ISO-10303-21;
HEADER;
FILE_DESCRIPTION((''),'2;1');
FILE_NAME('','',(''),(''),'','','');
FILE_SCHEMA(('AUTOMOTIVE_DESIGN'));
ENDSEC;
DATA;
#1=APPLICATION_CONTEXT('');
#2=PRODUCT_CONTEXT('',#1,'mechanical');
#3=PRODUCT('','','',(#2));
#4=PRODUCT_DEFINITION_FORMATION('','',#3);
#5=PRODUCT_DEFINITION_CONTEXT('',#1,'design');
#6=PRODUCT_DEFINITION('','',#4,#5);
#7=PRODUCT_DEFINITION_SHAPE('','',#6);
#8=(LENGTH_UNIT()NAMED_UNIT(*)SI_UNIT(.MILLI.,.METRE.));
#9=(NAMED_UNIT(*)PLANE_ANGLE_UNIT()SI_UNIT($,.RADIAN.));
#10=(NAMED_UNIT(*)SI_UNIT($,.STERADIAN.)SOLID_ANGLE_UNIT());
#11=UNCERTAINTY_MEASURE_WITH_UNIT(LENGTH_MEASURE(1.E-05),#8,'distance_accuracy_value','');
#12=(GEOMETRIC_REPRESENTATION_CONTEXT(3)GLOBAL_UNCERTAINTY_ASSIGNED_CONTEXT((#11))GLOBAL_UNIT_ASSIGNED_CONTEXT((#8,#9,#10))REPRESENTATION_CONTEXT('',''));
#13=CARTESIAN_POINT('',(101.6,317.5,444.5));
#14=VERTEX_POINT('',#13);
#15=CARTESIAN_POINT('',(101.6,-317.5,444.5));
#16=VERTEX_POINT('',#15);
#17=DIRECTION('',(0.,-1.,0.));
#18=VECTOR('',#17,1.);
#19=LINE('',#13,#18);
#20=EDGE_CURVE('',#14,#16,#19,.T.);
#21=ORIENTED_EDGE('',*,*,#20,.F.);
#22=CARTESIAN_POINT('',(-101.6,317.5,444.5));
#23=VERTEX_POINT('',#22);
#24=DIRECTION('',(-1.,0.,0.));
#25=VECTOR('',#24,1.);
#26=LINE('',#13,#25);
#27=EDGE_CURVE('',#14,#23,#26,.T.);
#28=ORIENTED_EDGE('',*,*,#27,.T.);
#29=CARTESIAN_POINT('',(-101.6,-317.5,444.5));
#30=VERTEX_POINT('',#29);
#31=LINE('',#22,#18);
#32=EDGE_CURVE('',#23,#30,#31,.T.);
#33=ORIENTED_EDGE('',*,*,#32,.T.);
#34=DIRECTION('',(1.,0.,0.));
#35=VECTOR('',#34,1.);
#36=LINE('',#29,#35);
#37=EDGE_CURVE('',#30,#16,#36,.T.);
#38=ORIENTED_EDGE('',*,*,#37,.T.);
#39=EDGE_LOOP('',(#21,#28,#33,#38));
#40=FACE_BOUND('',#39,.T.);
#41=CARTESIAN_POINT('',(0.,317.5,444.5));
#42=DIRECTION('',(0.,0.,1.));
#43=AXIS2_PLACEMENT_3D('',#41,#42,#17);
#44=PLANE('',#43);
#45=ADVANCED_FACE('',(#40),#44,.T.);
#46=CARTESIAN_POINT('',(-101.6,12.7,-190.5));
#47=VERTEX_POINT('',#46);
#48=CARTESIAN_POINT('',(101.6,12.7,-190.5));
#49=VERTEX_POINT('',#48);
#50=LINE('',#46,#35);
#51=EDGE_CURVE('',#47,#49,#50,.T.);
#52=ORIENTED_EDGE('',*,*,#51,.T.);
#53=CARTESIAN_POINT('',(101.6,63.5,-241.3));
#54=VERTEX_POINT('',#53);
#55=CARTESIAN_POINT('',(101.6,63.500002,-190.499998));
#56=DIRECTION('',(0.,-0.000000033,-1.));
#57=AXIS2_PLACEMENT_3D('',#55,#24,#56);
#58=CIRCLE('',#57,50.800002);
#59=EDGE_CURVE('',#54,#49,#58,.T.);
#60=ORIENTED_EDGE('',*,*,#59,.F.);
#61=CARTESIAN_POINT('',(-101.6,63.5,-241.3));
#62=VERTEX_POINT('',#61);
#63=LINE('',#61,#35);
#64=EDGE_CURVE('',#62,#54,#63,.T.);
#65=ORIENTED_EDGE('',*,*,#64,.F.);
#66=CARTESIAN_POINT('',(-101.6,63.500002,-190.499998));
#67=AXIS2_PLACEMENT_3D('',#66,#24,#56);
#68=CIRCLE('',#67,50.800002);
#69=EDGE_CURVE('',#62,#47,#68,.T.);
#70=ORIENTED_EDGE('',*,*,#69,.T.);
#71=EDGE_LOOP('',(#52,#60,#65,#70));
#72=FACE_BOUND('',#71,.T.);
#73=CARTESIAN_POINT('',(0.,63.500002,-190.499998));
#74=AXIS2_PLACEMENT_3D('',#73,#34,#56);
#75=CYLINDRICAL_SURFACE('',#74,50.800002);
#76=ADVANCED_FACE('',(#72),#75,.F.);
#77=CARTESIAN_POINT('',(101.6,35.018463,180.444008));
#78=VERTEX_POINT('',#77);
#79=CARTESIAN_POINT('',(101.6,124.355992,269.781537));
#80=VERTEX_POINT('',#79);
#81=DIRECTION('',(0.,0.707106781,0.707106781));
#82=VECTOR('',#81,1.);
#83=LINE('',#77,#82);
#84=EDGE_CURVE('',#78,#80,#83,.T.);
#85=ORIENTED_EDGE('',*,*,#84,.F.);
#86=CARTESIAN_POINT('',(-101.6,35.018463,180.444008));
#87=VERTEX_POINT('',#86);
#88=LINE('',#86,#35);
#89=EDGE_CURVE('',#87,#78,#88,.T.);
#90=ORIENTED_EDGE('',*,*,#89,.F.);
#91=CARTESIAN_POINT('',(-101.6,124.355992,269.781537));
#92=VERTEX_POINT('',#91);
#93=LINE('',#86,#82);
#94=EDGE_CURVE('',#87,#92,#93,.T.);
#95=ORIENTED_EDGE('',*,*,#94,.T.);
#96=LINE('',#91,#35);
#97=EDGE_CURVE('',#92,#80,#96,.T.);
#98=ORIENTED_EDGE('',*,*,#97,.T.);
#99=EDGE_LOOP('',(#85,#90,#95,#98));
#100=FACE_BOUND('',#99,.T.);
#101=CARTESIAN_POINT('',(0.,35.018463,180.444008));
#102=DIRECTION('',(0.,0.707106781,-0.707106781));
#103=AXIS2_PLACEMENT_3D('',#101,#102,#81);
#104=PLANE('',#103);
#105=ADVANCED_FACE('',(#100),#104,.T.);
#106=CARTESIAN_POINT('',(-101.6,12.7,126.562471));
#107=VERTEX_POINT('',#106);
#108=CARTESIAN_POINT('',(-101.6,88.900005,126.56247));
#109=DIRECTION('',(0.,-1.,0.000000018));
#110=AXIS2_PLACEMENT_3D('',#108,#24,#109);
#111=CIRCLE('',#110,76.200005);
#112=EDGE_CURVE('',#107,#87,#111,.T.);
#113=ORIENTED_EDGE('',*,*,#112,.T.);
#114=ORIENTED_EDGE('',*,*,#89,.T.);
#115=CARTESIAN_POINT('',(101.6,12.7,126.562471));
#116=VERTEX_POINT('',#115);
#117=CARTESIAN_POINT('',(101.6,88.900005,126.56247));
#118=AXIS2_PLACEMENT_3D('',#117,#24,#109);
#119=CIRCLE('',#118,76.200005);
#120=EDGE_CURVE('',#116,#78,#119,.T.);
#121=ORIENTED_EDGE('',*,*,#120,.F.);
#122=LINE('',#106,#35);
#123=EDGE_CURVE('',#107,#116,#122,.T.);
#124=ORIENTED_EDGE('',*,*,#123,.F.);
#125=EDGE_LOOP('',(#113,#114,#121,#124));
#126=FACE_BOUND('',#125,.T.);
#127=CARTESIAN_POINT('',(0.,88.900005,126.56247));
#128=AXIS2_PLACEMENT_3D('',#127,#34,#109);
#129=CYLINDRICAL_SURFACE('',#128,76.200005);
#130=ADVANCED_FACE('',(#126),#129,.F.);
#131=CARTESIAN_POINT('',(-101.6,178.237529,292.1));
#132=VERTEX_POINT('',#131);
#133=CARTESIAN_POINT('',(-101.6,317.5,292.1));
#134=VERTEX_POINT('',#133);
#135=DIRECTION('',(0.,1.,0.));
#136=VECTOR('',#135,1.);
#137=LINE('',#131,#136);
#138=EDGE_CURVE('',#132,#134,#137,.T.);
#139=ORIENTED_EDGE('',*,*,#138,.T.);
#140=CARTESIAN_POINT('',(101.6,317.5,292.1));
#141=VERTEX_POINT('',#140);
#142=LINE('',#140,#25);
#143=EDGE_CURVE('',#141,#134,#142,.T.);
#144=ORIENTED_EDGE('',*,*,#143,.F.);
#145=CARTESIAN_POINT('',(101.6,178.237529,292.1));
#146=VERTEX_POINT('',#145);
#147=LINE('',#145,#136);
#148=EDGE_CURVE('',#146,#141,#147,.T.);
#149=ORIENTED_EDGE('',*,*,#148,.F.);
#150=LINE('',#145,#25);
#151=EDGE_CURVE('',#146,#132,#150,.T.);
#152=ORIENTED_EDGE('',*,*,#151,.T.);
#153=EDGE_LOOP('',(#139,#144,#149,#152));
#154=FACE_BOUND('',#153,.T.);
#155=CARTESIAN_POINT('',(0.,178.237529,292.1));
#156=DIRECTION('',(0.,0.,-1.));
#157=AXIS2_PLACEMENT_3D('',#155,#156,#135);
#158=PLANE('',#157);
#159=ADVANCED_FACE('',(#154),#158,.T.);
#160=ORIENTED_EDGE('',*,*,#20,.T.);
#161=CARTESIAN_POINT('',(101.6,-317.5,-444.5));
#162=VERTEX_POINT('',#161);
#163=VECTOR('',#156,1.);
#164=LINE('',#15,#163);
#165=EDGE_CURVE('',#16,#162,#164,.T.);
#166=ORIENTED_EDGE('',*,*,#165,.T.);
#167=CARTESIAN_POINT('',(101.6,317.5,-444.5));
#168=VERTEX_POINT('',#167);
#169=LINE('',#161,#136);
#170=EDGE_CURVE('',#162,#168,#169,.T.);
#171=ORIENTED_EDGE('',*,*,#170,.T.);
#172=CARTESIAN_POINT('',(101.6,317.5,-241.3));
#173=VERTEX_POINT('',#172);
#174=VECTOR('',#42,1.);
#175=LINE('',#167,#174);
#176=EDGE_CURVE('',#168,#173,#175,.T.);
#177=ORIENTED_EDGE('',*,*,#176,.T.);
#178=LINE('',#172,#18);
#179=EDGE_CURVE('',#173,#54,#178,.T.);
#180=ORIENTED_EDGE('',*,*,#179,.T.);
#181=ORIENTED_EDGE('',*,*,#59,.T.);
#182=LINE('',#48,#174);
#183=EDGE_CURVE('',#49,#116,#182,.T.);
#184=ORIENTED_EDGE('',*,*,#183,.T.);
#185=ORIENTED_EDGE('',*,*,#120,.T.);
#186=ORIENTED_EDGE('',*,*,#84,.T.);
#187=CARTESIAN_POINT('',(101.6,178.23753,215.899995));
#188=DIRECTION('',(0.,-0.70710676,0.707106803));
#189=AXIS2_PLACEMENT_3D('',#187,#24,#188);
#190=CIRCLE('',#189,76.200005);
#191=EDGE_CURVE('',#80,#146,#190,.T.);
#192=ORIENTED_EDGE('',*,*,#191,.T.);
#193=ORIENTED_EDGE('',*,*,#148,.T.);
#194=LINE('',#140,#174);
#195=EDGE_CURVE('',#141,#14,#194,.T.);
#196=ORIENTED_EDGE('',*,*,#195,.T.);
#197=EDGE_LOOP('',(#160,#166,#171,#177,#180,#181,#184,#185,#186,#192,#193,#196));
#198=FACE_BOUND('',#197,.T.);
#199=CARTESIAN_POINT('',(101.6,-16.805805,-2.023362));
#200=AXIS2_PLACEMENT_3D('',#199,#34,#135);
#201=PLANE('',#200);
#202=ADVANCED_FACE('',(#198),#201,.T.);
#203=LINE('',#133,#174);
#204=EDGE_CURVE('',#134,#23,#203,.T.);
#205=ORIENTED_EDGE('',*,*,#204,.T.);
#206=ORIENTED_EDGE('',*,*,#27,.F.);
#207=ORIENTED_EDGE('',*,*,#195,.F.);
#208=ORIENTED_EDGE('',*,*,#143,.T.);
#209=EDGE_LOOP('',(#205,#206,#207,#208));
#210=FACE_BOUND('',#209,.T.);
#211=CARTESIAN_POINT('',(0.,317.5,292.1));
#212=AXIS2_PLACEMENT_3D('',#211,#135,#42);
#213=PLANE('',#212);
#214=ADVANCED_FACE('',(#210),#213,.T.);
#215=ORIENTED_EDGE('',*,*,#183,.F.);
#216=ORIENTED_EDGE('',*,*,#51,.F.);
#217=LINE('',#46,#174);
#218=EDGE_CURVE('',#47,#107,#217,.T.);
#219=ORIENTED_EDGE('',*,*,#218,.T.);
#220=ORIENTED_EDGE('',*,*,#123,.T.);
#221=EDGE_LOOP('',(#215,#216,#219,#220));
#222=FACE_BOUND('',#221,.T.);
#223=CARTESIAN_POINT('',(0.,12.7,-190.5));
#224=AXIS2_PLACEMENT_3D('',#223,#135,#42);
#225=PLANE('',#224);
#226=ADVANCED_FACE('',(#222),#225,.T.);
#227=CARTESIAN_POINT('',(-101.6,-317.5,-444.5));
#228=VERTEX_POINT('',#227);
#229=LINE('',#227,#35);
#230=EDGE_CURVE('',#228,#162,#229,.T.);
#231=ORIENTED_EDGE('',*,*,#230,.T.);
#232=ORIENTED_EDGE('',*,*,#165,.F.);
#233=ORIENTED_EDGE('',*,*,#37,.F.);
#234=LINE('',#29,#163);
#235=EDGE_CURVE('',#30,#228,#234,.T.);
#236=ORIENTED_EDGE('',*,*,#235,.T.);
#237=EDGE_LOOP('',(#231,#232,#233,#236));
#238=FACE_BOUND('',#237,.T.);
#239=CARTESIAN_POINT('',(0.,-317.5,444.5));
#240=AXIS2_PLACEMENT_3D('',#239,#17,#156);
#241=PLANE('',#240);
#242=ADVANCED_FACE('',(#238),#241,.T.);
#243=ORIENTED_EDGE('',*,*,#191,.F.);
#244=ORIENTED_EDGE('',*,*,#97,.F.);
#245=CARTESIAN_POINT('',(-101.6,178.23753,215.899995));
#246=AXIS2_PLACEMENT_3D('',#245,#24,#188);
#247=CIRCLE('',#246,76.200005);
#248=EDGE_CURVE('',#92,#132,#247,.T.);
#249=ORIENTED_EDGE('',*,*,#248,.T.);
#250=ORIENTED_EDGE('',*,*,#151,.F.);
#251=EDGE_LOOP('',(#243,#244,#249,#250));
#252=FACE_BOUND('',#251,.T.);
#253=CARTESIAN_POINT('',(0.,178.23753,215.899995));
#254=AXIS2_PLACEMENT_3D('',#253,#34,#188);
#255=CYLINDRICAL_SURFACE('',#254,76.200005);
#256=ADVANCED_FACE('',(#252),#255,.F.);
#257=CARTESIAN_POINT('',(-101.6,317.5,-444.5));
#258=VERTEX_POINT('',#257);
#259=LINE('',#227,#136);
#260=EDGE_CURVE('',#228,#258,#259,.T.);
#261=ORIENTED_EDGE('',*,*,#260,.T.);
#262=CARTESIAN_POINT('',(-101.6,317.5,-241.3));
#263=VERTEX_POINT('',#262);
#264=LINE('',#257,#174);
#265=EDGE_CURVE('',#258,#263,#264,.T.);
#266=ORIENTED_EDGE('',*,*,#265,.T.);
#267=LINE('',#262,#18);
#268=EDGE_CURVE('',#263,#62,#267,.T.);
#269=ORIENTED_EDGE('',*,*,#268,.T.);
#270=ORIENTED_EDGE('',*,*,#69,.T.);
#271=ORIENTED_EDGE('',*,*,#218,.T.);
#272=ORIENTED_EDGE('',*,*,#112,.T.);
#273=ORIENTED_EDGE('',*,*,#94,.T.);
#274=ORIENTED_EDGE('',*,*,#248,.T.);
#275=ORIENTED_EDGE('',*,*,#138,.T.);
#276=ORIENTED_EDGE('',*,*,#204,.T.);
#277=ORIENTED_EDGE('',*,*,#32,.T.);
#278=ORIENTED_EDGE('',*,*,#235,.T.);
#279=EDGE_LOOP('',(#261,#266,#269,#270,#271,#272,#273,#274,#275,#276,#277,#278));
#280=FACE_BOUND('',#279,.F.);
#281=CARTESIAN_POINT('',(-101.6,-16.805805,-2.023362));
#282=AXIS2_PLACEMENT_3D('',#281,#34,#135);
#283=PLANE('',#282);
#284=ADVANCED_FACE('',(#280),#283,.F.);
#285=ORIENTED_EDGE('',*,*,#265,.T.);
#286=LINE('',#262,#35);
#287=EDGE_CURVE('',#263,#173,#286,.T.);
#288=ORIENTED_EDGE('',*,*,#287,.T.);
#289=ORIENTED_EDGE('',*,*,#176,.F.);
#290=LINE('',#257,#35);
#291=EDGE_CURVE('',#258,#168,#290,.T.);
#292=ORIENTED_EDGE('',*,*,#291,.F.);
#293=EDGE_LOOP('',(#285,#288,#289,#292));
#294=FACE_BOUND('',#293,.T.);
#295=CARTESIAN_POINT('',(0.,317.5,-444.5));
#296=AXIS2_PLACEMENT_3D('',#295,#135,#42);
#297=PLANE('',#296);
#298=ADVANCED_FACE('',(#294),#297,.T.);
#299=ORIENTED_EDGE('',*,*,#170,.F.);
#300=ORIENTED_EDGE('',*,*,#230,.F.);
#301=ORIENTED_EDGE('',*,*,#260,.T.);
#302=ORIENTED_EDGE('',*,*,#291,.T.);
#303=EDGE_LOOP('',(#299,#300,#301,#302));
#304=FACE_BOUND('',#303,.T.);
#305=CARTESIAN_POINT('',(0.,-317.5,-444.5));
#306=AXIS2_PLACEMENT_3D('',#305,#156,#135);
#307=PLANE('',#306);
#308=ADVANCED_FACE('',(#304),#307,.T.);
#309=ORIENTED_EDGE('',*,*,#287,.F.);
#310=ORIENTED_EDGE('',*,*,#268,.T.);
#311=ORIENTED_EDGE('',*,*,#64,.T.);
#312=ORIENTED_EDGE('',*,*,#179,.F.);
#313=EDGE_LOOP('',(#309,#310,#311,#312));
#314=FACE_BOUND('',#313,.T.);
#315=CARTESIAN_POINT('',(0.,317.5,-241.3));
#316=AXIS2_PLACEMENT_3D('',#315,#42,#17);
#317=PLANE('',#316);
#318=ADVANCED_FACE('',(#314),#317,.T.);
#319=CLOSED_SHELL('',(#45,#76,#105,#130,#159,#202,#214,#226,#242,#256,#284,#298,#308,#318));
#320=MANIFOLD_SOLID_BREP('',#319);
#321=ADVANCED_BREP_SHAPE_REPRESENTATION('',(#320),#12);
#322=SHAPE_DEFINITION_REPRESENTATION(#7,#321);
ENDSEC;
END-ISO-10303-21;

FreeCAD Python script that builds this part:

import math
import FreeCAD as App
import Part
import Sketcher
from FreeCAD import Vector
Q = App.Units.Quantity

doc = App.newDocument("Part")
body = doc.addObject("PartDesign::Body", "Body")

sketch1 = body.newObject("Sketcher::SketchObject", "Sketch")
sketch1.AttachmentSupport = (doc.getObject("YZ_Plane"), [""])
sketch1.MapMode = "FlatFace"
sketch1.addGeometry(Part.LineSegment(Vector(318, 444, 0), Vector(-318, 444, 0)), False)
sketch1.addGeometry(Part.LineSegment(Vector(-318, 444, 0), Vector(-318, -444, 0)), False)
sketch1.addGeometry(Part.LineSegment(Vector(-318, -444, 0), Vector(318, -444, 0)), False)
sketch1.addGeometry(Part.LineSegment(Vector(318, -444, 0), Vector(318, -241, 0)), False)
sketch1.addGeometry(Part.LineSegment(Vector(318, -241, 0), Vector(64, -241, 0)), False)
sketch1.addGeometry(Part.ArcOfCircle(Part.Circle(Vector(64, -190, 0), Vector(0, 0, 1), 51), math.radians(-180), math.radians(-90)), False)
sketch1.addGeometry(Part.LineSegment(Vector(13, -190, 0), Vector(13, 127, 0)), False)
sketch1.addGeometry(Part.ArcOfCircle(Part.Circle(Vector(89, 127, 0), Vector(0, 0, 1), 76), math.radians(135), math.radians(180)), False)
sketch1.addGeometry(Part.LineSegment(Vector(35, 180, 0), Vector(124, 270, 0)), False)
sketch1.addGeometry(Part.ArcOfCircle(Part.Circle(Vector(178, 216, 0), Vector(0, 0, 1), 76), math.radians(90), math.radians(135)), False)
sketch1.addGeometry(Part.LineSegment(Vector(178, 292, 0), Vector(318, 292, 0)), False)
sketch1.addGeometry(Part.LineSegment(Vector(318, 292, 0), Vector(318, 444, 0)), False)
sketch1.addConstraint(Sketcher.Constraint("Coincident", 0, 2, 1, 1))
sketch1.addConstraint(Sketcher.Constraint("Coincident", 1, 2, 2, 1))
sketch1.addConstraint(Sketcher.Constraint("Coincident", 2, 2, 3, 1))
sketch1.addConstraint(Sketcher.Constraint("Coincident", 3, 2, 4, 1))
sketch1.addConstraint(Sketcher.Constraint("Tangent", 4, 2, 5, 2))
sketch1.addConstraint(Sketcher.Constraint("Tangent", 5, 1, 6, 1))
sketch1.addConstraint(Sketcher.Constraint("Tangent", 6, 2, 7, 2))
sketch1.addConstraint(Sketcher.Constraint("Tangent", 7, 1, 8, 1))
sketch1.addConstraint(Sketcher.Constraint("Tangent", 8, 2, 9, 2))
sketch1.addConstraint(Sketcher.Constraint("Tangent", 9, 1, 10, 1))
sketch1.addConstraint(Sketcher.Constraint("Coincident", 10, 2, 11, 1))
sketch1.addConstraint(Sketcher.Constraint("Coincident", 11, 2, 0, 1))
sketch1.addConstraint(Sketcher.Constraint("Horizontal", 0))
sketch1.addConstraint(Sketcher.Constraint("Vertical", 1))
sketch1.addConstraint(Sketcher.Constraint("Horizontal", 2))
sketch1.addConstraint(Sketcher.Constraint("Vertical", 3))
sketch1.addConstraint(Sketcher.Constraint("Horizontal", 4))
sketch1.addConstraint(Sketcher.Constraint("Vertical", 6))
sketch1.addConstraint(Sketcher.Constraint("Horizontal", 10))
sketch1.addConstraint(Sketcher.Constraint("Vertical", 11))
sketch1.addConstraint(Sketcher.Constraint("Equal", 7, 9))
sketch1.addConstraint(Sketcher.Constraint("Symmetric", 0, 2, 2, 2, -1, 1))
sketch1.addConstraint(Sketcher.Constraint("Vertical", 3, 2, 10, 2))
sketch1.addConstraint(Sketcher.Constraint("Radius", 5, Q("2.0000001 in")))
sketch1.addConstraint(Sketcher.Constraint("Radius", 7, Q("3.0000002 in")))
sketch1.addConstraint(Sketcher.Constraint("DistanceX", 0, 2, 0, 1, Q("25 in")))
sketch1.addConstraint(Sketcher.Constraint("DistanceX", 4, 2, 4, 1, Q("10 in")))
sketch1.addConstraint(Sketcher.Constraint("DistanceY", 1, 2, 1, 1, Q("35 in")))
sketch1.addConstraint(Sketcher.Constraint("DistanceY", 3, 1, 3, 2, Q("8 in")))
sketch1.addConstraint(Sketcher.Constraint("DistanceY", 11, 1, 11, 2, Q("6 in")))
sketch1.addConstraint(Sketcher.Constraint("Angle", 8, Q("45 deg")))
sketch1.addConstraint(Sketcher.Constraint("DistanceX", 10, 1, 10, 2, 139.262471))
pad1 = body.newObject("PartDesign::Pad", "Pad")
pad1.Profile = sketch1
pad1.Length = Q("8 in")
pad1.Midplane = True

doc.recompute()
